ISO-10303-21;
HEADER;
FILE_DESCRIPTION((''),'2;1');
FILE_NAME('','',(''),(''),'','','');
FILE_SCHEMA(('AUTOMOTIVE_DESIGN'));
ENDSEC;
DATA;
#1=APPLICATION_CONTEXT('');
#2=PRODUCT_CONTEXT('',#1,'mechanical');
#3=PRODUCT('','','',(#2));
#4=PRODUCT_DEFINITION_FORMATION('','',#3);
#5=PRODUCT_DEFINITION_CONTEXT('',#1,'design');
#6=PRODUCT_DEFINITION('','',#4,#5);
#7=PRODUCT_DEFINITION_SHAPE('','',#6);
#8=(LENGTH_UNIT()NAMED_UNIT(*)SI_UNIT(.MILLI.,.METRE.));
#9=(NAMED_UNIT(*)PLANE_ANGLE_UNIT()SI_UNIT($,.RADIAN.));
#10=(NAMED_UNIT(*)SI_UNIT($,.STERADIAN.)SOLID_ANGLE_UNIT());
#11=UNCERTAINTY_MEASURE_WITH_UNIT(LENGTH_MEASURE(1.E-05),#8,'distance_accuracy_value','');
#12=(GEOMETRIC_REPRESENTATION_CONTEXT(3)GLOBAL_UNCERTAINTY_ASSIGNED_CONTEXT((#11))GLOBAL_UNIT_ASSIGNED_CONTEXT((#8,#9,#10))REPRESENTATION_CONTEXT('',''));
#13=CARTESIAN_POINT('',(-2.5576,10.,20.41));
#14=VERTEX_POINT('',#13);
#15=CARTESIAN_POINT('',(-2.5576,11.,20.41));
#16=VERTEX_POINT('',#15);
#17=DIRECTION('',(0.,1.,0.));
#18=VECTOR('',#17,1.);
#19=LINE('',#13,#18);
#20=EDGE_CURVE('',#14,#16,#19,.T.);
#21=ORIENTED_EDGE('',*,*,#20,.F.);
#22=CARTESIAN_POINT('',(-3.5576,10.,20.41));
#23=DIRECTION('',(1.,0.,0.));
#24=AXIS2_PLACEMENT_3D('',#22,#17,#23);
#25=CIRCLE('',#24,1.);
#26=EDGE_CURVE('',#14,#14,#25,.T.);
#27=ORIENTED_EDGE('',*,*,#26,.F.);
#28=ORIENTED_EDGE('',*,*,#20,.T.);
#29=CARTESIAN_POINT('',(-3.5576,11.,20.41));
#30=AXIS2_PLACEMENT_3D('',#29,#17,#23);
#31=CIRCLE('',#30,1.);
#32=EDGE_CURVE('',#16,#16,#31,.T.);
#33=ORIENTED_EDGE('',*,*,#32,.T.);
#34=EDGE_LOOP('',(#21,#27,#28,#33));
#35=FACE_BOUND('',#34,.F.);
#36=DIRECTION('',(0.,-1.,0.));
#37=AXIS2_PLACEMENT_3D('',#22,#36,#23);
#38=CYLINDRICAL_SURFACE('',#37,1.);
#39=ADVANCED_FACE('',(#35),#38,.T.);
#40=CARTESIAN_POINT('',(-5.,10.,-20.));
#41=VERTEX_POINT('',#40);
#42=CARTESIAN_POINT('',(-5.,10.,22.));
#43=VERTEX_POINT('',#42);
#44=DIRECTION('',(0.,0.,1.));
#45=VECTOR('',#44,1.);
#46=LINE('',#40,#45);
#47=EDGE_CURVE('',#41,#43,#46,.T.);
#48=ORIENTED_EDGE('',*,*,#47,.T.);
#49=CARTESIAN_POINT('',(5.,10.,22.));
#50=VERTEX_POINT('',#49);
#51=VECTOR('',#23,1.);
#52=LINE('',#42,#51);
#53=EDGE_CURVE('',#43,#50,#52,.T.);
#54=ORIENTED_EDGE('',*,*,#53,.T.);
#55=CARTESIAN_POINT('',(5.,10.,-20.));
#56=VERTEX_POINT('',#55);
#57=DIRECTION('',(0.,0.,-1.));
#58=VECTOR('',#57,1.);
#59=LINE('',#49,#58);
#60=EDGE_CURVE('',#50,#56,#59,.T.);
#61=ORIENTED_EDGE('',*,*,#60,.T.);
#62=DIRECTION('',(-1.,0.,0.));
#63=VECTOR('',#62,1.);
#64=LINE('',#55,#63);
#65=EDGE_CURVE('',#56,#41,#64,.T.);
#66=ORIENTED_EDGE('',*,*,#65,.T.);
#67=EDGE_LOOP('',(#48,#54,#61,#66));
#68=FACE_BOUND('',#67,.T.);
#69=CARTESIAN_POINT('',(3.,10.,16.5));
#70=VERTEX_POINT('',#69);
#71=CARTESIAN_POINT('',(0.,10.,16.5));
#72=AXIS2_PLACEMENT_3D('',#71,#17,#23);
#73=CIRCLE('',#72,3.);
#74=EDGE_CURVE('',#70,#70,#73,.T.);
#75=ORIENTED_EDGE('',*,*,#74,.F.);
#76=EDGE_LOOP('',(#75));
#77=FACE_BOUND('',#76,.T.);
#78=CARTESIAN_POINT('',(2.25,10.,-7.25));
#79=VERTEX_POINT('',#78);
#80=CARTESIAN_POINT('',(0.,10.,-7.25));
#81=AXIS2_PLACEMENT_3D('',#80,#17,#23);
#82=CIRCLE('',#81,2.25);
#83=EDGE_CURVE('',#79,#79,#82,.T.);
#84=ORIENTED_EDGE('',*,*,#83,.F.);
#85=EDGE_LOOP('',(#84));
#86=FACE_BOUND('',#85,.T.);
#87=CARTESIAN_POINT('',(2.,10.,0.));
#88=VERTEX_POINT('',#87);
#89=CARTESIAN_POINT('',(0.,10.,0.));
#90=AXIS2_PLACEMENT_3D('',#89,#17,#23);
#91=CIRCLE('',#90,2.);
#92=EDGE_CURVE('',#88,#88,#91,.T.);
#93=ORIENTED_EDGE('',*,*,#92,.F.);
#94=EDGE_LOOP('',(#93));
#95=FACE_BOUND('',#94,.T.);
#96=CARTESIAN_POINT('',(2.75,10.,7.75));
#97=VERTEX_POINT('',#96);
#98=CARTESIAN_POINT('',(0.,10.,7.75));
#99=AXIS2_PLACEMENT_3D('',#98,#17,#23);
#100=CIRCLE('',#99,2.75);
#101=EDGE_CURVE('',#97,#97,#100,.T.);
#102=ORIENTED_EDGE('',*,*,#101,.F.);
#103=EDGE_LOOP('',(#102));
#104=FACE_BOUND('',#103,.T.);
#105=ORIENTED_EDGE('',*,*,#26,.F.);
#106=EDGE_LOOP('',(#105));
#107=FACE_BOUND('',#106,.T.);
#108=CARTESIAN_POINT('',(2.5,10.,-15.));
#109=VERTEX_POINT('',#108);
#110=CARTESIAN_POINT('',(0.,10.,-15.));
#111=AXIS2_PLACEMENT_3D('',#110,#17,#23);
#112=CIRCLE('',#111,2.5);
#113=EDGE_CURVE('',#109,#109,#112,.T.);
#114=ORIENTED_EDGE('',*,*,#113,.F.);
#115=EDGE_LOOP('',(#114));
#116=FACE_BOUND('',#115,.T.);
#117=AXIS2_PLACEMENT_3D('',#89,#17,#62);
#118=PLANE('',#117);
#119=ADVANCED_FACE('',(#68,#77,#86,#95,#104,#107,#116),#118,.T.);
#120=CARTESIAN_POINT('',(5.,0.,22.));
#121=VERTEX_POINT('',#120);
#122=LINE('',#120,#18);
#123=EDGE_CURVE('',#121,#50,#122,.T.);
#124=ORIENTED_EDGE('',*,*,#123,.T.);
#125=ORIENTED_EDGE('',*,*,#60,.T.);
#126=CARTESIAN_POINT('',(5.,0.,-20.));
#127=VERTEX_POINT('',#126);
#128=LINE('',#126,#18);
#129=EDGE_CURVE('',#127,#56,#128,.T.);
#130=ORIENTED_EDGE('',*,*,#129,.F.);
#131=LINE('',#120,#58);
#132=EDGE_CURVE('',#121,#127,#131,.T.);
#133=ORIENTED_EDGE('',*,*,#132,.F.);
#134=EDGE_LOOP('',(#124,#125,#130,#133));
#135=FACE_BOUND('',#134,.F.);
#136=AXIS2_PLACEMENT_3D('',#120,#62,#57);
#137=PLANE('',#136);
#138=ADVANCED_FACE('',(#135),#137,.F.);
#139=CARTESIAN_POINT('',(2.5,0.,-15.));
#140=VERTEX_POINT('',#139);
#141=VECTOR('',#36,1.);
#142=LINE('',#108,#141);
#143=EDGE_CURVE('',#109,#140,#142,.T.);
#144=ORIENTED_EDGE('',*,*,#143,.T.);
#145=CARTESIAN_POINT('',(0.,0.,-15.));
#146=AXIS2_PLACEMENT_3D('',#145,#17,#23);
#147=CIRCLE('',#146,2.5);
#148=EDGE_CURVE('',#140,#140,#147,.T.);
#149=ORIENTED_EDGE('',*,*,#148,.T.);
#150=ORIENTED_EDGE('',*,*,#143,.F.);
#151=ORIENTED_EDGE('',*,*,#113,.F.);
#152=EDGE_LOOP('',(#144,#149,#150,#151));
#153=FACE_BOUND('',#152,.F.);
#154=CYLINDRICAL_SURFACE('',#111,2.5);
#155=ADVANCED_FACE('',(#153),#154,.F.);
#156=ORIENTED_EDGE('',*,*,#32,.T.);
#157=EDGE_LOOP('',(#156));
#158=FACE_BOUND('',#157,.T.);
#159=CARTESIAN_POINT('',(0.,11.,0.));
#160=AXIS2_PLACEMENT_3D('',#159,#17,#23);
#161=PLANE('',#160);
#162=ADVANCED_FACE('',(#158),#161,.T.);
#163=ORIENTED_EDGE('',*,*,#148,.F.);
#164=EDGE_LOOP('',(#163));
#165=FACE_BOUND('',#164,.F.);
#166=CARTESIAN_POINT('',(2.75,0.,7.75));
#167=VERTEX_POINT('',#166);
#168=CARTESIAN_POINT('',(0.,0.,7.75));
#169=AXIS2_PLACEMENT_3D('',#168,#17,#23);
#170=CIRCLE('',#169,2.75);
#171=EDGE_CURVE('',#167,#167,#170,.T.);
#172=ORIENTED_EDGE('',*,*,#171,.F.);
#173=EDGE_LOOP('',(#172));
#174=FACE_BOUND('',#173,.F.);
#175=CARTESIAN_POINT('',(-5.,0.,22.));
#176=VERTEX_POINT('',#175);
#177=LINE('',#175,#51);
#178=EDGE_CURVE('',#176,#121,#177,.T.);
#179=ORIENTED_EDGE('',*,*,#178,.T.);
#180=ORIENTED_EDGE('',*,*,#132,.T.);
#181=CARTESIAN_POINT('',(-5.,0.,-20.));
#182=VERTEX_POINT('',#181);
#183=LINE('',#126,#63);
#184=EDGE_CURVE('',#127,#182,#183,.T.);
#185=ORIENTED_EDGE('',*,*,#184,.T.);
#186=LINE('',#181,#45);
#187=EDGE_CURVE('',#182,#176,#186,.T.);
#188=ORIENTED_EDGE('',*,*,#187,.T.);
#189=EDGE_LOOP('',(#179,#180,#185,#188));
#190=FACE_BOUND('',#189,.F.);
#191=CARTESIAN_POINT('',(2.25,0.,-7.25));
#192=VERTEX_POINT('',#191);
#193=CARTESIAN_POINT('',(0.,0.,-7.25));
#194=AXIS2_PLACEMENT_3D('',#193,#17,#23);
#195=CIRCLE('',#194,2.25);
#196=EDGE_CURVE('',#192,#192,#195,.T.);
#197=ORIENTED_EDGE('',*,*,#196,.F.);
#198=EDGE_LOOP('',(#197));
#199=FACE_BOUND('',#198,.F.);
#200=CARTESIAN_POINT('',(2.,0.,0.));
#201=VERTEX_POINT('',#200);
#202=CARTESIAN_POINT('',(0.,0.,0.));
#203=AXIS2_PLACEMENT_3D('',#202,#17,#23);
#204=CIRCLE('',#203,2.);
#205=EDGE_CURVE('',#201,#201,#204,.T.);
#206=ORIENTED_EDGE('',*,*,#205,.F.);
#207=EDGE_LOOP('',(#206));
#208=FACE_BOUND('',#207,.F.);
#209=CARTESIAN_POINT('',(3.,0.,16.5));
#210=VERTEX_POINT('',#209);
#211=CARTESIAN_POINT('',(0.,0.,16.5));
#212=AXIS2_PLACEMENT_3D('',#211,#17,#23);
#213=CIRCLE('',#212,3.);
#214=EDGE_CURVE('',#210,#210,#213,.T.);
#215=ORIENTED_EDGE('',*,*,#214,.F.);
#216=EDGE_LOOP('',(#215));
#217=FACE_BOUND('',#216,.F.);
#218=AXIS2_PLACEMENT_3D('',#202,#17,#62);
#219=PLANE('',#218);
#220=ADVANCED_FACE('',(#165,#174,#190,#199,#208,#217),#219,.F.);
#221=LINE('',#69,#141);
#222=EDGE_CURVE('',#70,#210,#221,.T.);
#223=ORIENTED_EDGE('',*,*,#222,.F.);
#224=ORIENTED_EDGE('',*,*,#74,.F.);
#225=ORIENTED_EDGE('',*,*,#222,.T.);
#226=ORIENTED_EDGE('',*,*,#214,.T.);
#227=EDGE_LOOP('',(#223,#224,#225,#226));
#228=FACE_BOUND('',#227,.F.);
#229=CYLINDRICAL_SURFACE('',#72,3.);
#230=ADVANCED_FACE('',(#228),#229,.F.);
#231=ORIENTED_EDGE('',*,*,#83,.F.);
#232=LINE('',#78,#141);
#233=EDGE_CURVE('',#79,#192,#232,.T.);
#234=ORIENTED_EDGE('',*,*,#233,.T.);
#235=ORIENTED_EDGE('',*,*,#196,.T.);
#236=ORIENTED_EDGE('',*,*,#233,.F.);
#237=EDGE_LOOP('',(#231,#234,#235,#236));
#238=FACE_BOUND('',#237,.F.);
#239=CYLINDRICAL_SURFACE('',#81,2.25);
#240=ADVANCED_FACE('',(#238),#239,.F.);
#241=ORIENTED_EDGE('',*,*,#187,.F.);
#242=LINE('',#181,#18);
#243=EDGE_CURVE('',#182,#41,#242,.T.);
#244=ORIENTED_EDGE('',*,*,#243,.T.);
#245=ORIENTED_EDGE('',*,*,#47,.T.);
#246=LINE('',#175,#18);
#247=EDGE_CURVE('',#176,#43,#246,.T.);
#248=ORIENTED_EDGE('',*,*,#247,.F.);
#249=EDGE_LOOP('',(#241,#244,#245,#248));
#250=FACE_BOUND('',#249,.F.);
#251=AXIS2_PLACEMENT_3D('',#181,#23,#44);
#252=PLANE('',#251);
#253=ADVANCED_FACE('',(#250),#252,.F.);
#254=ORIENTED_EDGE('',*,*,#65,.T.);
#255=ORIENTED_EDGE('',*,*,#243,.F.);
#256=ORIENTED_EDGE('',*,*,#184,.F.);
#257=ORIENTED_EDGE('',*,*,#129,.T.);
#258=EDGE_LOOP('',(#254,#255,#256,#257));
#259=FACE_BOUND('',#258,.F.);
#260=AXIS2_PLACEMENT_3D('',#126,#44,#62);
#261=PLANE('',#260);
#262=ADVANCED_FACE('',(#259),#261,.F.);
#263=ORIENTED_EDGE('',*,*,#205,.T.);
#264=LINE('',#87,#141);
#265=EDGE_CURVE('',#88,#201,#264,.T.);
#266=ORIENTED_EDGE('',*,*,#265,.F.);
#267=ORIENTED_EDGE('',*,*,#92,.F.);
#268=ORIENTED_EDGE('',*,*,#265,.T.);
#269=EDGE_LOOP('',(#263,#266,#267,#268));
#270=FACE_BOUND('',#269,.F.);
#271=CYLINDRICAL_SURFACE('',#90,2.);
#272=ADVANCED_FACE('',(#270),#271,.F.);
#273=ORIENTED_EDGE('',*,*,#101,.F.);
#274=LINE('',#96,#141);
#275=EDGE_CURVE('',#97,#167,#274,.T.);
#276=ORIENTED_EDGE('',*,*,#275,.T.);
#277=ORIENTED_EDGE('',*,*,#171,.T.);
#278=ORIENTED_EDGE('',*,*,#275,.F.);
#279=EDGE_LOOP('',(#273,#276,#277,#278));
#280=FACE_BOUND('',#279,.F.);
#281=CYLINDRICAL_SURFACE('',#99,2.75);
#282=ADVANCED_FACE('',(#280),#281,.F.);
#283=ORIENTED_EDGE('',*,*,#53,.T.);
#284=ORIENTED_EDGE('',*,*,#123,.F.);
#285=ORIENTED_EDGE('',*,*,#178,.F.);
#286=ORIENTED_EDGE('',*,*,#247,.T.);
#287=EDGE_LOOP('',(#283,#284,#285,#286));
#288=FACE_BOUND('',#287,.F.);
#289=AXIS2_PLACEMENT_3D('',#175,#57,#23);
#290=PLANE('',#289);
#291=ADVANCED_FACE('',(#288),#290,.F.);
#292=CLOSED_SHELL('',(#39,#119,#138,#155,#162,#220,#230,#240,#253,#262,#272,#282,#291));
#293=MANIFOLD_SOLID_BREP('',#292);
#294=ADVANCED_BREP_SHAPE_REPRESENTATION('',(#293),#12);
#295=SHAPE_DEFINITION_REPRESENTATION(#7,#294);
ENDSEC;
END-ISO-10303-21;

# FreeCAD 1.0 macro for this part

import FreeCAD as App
import Part
import Sketcher

doc = App.newDocument("Part")
body = doc.addObject("PartDesign::Body", "Body")

sketch1 = doc.addObject("Sketcher::SketchObject", "Sketch")
body.addObject(sketch1)
sketch1.AttachmentSupport = (doc.XZ_Plane, [""])
sketch1.MapMode = "FlatFace"
sketch1.addGeometry([
    Part.LineSegment(App.Vector(-5, -20, 0), App.Vector(-5, 22, 0)),
    Part.LineSegment(App.Vector(-5, 22, 0), App.Vector(5, 22, 0)),
    Part.LineSegment(App.Vector(5, 22, 0), App.Vector(5, -20, 0)),
    Part.LineSegment(App.Vector(5, -20, 0), App.Vector(-5, -20, 0)),
], False)
sketch1.addConstraint([
    Sketcher.Constraint("Coincident", 0, 2, 1, 1),
    Sketcher.Constraint("Coincident", 1, 2, 2, 1),
    Sketcher.Constraint("Coincident", 2, 2, 3, 1),
    Sketcher.Constraint("Coincident", 3, 2, 0, 1),
    Sketcher.Constraint("Vertical", 0),
    Sketcher.Constraint("Horizontal", 1),
    Sketcher.Constraint("Vertical", 2),
    Sketcher.Constraint("Horizontal", 3),
    Sketcher.Constraint("DistanceX", 0, 2, -1, 1, 5.0),
    Sketcher.Constraint("DistanceY", -1, 1, 0, 2, 22.0),
    Sketcher.Constraint("DistanceX", -1, 1, 1, 2, 5.0),
    Sketcher.Constraint("DistanceY", 2, 2, -1, 1, 20.0),
])
pad1 = doc.addObject("PartDesign::Pad", "Pad")
body.addObject(pad1)
pad1.Profile = sketch1
pad1.Length = 10
pad1.Reversed = True

sketch2 = doc.addObject("Sketcher::SketchObject", "Sketch001")
body.addObject(sketch2)
sketch2.AttachmentSupport = (doc.XZ_Plane, [""])
sketch2.MapMode = "FlatFace"
sketch2.AttachmentOffset = App.Placement(App.Vector(0, 0, -10), App.Rotation())
sketch2.addGeometry([
    Part.Circle(App.Vector(0, 0, 0), App.Vector(0, 0, 1), 2),
    Part.Circle(App.Vector(0, -7.25, 0), App.Vector(0, 0, 1), 2.25),
    Part.Circle(App.Vector(0, -15, 0), App.Vector(0, 0, 1), 2.5),
    Part.Circle(App.Vector(0, 7.75, 0), App.Vector(0, 0, 1), 2.75),
    Part.Circle(App.Vector(0, 16.5, 0), App.Vector(0, 0, 1), 3),
], False)
sketch2.addConstraint([
    Sketcher.Constraint("Coincident", 0, 3, -1, 1),
    Sketcher.Constraint("PointOnObject", 1, 3, -2),
    Sketcher.Constraint("PointOnObject", 2, 3, -2),
    Sketcher.Constraint("PointOnObject", 3, 3, -2),
    Sketcher.Constraint("PointOnObject", 4, 3, -2),
    Sketcher.Constraint("Diameter", 0, 4.0),
    Sketcher.Constraint("Diameter", 2, 5.0),
    Sketcher.Constraint("Diameter", 4, 6.0),
    Sketcher.Constraint("Diameter", 1, 4.5),
    Sketcher.Constraint("Diameter", 3, 5.5),
    Sketcher.Constraint("DistanceY", 2, 3, -1, 1, 15.0),
    Sketcher.Constraint("DistanceY", 1, 3, 3, 3, 15.0),
    Sketcher.Constraint("DistanceY", -1, 1, 4, 3, 16.5),
    Sketcher.Constraint("DistanceY", 1, 3, -1, 1, 7.25),
])
pocket1 = doc.addObject("PartDesign::Pocket", "Pocket")
body.addObject(pocket1)
pocket1.Profile = sketch2
pocket1.Type = "ThroughAll"
pocket1.Reversed = True

sketch3 = doc.addObject("Sketcher::SketchObject", "Sketch002")
body.addObject(sketch3)
sketch3.AttachmentSupport = (doc.XZ_Plane, [""])
sketch3.MapMode = "FlatFace"
sketch3.AttachmentOffset = App.Placement(App.Vector(0, 0, -10), App.Rotation())
sketch3.addGeometry(Part.Circle(App.Vector(-3.5576, 20.41, 0), App.Vector(0, 0, 1), 1), False)
sketch3.addConstraint([
    Sketcher.Constraint("Diameter", 0, 2.0),
    Sketcher.Constraint("DistanceY", -1, 1, 0, 3, 20.41),
    Sketcher.Constraint("DistanceX", 0, 3, -1, 1, 3.5576),
])
pad2 = doc.addObject("PartDesign::Pad", "Pad001")
body.addObject(pad2)
pad2.Profile = sketch3
pad2.Length = 1
pad2.Reversed = True

doc.recompute()
